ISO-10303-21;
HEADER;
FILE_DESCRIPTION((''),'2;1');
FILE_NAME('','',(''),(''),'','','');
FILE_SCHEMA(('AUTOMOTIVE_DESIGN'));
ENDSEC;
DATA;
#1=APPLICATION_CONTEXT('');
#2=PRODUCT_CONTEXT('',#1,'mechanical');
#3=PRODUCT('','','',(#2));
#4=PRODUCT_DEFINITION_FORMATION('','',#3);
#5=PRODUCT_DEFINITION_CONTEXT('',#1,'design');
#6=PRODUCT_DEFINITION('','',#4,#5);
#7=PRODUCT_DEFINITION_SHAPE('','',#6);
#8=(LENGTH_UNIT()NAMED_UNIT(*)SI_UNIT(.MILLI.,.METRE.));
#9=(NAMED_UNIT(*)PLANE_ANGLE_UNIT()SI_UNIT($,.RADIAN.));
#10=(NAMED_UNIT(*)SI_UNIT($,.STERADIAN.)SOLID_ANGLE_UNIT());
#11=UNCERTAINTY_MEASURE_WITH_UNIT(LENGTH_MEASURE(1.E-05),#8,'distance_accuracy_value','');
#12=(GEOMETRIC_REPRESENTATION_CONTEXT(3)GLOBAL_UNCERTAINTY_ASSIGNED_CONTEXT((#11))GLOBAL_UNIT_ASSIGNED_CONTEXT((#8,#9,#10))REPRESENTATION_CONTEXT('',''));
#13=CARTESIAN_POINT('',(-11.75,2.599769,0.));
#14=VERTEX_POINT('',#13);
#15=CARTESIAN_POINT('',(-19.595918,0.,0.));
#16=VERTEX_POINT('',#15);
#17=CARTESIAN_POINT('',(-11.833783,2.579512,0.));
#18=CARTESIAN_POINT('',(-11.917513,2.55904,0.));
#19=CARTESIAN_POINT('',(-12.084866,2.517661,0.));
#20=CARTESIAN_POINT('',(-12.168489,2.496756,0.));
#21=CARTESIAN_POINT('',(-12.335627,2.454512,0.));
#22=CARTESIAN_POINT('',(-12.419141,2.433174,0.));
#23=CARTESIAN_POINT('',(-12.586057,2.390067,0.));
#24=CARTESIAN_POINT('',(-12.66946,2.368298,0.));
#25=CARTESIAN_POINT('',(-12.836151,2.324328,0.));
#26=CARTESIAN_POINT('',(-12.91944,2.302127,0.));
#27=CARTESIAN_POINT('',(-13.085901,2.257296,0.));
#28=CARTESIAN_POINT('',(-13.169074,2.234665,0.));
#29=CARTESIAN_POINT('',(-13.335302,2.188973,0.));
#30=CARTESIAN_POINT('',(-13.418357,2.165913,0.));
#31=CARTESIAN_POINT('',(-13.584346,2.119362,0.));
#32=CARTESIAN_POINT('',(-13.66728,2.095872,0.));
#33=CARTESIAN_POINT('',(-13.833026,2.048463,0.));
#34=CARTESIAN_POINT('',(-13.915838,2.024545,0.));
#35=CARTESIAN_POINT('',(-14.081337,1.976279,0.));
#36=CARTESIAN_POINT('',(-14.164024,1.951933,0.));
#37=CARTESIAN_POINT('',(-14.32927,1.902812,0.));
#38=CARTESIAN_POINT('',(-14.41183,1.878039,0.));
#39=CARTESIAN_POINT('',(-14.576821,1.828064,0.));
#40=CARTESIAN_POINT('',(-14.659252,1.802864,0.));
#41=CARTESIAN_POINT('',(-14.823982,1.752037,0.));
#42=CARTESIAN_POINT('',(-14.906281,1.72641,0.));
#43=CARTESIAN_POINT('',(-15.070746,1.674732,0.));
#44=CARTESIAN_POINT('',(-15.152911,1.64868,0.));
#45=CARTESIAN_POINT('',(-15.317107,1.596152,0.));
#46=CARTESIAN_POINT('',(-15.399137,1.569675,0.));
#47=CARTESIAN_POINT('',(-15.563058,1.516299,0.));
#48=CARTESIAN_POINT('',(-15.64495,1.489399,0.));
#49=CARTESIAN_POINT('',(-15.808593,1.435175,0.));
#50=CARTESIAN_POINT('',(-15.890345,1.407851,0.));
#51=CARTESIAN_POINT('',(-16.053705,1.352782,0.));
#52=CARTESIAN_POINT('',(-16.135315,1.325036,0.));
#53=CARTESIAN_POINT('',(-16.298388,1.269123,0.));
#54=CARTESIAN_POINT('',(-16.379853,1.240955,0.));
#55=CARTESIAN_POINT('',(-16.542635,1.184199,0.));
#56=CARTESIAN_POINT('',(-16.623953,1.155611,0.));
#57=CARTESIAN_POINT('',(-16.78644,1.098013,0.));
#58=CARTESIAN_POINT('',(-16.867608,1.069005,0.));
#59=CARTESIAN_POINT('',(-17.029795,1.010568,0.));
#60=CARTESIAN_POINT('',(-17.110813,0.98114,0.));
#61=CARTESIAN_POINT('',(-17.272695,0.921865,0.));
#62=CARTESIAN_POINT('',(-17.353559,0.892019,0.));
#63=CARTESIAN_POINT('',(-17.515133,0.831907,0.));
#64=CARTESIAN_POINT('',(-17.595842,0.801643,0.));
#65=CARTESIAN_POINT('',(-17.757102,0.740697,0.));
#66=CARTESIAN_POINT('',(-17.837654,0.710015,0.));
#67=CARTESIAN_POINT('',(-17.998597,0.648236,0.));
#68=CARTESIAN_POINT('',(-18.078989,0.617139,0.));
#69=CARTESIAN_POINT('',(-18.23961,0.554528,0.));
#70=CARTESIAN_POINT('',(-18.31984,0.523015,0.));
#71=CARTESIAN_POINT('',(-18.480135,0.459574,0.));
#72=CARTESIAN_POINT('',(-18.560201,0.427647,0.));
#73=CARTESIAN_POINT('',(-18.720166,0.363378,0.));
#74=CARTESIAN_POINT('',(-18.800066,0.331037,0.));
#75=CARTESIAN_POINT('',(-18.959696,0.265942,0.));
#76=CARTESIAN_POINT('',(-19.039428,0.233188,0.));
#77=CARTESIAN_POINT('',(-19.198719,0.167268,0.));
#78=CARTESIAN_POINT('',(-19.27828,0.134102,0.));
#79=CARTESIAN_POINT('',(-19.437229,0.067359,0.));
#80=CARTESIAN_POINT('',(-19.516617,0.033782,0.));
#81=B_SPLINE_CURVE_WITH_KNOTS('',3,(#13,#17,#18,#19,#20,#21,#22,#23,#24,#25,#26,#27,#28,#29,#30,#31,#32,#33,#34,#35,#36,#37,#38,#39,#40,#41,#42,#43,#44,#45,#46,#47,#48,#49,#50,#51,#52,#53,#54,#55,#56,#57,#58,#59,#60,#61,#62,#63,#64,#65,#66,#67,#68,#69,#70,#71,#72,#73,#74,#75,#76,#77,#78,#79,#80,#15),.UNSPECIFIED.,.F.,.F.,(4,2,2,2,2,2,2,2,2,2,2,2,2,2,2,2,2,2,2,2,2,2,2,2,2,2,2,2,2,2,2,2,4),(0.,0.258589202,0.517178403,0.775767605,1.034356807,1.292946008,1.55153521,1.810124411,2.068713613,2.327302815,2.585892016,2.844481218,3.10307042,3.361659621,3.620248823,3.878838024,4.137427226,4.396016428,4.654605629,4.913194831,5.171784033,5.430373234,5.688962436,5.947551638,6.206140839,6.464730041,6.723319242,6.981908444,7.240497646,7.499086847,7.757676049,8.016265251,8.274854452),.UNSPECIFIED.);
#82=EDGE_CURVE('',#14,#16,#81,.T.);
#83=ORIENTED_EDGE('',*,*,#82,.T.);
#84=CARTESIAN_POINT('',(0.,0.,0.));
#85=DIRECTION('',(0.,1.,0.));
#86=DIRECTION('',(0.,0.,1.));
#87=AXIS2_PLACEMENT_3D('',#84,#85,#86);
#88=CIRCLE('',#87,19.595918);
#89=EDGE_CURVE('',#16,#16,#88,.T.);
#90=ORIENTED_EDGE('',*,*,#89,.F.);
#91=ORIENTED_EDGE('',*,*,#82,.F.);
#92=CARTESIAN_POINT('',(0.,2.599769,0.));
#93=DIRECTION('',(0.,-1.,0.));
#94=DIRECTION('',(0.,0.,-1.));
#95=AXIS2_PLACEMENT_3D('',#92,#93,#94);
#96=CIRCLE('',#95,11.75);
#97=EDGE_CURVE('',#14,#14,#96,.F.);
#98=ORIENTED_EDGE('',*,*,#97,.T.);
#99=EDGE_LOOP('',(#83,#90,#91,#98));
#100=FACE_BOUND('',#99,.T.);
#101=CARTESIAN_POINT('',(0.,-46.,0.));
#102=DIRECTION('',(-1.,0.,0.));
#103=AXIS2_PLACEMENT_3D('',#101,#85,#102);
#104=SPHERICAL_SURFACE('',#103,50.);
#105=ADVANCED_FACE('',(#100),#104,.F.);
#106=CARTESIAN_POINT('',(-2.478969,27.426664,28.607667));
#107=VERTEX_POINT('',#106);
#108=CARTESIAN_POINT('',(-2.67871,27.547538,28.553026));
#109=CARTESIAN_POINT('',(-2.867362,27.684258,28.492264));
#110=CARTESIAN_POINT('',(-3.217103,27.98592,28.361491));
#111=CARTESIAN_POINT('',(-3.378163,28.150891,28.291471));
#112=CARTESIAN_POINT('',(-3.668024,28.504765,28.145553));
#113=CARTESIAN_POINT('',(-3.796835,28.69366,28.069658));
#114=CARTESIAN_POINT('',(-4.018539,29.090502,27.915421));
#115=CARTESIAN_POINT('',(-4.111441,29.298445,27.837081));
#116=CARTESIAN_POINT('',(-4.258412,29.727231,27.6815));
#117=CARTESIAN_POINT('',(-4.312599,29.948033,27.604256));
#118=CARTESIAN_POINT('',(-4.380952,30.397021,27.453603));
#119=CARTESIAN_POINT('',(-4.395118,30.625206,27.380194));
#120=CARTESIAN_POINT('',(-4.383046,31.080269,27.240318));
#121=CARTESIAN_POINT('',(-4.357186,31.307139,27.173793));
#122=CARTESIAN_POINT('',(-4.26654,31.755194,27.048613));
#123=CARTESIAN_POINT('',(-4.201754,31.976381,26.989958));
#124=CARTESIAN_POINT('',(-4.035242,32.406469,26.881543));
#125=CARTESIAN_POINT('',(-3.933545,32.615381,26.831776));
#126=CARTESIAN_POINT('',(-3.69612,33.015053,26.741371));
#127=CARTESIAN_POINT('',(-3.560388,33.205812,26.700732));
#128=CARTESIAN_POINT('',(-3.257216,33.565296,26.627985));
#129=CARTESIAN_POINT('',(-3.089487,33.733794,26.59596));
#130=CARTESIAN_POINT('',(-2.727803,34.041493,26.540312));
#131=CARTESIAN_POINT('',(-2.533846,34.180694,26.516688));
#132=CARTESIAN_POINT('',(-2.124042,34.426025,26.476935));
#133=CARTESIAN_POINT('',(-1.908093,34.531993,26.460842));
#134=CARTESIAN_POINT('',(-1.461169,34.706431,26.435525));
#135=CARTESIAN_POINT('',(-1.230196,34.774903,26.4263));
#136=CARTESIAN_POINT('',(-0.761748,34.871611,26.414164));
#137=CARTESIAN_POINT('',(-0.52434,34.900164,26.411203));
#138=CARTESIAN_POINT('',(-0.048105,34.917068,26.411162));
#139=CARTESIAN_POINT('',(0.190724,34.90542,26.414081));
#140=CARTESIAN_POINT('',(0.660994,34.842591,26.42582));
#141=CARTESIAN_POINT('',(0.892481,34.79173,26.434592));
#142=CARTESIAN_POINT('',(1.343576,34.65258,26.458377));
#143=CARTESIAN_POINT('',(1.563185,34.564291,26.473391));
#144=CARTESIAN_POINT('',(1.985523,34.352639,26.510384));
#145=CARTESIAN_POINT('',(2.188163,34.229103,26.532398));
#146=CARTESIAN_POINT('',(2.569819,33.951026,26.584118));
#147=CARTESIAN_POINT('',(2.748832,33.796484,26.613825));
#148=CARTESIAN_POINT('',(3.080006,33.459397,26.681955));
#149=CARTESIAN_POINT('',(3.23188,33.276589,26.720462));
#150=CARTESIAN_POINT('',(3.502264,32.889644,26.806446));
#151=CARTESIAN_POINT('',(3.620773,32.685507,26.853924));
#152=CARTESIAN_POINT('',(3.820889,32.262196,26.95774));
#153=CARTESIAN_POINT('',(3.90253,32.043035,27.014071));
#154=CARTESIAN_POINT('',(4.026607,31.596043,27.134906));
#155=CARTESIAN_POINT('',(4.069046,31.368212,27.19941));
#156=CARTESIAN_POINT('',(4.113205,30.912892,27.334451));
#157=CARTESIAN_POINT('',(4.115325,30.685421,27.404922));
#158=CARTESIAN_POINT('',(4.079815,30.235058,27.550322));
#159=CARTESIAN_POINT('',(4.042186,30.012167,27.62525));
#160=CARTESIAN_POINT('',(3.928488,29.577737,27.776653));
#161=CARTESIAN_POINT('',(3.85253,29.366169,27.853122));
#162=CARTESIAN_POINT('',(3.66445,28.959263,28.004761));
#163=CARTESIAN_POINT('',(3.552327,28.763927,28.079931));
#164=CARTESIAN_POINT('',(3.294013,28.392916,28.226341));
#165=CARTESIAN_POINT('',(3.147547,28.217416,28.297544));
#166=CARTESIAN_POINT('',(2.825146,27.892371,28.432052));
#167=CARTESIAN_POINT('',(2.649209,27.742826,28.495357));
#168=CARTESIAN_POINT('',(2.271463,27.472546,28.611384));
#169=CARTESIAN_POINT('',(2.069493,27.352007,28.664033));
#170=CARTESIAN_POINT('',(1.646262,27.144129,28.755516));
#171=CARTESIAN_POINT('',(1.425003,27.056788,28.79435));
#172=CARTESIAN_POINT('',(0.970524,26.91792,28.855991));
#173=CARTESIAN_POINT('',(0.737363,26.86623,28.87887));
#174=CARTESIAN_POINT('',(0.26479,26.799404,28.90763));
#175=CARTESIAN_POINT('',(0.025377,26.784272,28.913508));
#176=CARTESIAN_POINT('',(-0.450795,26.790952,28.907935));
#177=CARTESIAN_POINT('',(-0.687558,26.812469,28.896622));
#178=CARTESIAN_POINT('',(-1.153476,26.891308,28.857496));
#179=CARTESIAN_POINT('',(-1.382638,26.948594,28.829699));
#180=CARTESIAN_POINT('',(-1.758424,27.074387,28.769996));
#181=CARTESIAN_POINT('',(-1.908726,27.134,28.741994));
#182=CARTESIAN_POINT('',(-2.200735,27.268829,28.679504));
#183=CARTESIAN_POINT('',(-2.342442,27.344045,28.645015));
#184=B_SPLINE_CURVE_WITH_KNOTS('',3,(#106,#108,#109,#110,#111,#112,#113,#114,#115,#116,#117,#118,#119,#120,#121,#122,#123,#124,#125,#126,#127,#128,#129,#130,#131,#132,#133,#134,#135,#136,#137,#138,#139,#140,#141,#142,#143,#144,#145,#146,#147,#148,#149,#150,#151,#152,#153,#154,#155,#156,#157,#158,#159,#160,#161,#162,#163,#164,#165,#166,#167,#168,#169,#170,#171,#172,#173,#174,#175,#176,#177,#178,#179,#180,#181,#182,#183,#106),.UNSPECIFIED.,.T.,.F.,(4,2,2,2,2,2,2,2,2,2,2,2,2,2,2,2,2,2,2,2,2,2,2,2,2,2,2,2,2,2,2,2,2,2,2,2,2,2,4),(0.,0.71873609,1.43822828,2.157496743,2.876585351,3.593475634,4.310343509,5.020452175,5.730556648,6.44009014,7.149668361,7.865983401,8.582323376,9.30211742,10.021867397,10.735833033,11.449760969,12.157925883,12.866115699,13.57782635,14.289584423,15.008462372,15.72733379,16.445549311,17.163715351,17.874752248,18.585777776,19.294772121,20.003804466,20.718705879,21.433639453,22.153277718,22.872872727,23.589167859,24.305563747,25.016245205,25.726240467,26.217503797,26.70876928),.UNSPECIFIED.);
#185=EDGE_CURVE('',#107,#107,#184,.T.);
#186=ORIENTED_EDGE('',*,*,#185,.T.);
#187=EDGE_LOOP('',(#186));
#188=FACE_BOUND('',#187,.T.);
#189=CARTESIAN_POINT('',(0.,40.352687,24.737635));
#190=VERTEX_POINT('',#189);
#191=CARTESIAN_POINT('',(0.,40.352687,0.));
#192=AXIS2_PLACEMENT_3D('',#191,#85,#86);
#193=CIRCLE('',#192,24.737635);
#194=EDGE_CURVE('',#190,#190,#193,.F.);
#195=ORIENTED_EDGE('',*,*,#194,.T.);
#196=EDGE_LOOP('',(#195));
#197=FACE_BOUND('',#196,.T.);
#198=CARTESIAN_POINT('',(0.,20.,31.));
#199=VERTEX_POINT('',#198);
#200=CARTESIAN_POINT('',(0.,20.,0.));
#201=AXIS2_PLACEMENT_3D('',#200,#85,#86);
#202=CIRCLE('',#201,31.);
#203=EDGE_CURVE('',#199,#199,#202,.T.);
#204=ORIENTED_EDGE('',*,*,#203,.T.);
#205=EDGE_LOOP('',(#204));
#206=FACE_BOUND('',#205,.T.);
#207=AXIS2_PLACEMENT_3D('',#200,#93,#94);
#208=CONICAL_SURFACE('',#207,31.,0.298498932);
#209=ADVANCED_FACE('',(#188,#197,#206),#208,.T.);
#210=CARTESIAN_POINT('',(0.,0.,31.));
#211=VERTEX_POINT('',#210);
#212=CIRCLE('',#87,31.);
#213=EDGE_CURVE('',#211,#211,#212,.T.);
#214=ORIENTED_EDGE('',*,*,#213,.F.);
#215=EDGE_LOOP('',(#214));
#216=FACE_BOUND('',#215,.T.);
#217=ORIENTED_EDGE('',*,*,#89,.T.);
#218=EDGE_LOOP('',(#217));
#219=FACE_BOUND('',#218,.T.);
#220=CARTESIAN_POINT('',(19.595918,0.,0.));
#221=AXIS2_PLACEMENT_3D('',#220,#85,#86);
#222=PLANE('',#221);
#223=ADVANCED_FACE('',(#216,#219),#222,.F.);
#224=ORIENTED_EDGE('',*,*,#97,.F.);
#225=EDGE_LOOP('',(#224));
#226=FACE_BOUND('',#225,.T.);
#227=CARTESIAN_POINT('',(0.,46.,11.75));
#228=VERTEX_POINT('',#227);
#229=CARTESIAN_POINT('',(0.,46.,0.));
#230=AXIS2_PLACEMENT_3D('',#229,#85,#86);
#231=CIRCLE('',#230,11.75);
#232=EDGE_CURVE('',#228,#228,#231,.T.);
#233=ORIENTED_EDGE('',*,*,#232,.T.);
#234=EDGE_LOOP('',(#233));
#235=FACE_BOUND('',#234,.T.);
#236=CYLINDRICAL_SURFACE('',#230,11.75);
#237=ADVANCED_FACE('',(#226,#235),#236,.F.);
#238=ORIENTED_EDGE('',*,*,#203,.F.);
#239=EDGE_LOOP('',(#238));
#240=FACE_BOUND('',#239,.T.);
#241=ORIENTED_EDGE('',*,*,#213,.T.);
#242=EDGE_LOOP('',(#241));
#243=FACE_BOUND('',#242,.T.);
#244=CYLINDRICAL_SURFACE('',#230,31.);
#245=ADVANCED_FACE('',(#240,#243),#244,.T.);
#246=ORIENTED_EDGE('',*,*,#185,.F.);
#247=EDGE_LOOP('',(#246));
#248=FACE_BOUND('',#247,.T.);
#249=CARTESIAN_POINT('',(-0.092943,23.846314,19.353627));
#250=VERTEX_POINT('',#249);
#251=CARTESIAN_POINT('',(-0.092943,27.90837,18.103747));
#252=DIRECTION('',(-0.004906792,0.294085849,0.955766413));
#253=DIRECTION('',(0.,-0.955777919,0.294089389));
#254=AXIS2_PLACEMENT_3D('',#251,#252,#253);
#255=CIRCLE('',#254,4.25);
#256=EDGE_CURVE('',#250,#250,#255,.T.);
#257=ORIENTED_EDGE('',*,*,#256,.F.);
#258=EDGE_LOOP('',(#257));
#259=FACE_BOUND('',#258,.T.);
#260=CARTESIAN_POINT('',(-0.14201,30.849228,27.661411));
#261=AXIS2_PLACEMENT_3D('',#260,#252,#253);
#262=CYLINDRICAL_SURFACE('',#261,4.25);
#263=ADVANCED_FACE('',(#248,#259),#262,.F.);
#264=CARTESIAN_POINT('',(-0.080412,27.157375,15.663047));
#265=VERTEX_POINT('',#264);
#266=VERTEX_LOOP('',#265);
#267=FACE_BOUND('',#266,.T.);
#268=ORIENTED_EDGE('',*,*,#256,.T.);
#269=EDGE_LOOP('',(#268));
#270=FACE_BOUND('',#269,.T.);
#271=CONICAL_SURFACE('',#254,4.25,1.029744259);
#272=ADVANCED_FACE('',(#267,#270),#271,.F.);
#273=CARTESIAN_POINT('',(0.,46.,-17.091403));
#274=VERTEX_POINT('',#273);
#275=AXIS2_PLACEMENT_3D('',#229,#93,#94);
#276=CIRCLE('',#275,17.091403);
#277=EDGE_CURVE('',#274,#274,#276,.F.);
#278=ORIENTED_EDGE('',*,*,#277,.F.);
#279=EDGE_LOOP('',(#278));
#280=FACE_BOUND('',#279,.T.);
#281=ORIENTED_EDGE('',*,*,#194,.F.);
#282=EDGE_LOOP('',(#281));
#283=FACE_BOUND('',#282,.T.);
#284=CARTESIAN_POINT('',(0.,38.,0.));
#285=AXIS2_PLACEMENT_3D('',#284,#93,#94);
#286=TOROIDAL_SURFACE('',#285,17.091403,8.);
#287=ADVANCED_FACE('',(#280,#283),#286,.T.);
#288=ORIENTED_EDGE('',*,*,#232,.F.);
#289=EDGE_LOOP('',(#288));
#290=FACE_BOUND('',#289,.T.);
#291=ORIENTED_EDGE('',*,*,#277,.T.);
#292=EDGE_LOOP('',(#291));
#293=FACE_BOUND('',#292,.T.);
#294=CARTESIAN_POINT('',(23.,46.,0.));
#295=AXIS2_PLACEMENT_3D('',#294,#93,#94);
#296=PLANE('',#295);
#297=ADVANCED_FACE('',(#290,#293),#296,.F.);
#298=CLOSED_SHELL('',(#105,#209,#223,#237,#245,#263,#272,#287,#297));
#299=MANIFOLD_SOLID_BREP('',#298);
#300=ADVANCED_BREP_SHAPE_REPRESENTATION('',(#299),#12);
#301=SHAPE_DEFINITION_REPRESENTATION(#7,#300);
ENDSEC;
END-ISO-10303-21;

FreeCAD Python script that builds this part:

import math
import FreeCAD as App
import Part
import Sketcher

V = App.Vector


def edges_at(feature, points):
    """Names of the edges that pass closest to the given points."""
    edges = feature.Shape.Edges
    near = lambda p: min(range(len(edges)), key=lambda i: edges[i].distToShape(Part.Vertex(*p))[0])
    return sorted({f"Edge{near(p) + 1}" for p in points})

doc = App.newDocument("Part")
body = doc.addObject("PartDesign::Body", "Body")

sketch1 = body.newObject("Sketcher::SketchObject", "Sketch")
sketch1.AttachmentSupport = (doc.getObject("XY_Plane"), [""])
sketch1.MapMode = "FlatFace"
sketch1.addGeometry([
    Part.LineSegment(V(19.595918, 0, 0), V(31, 0, 0)),
    Part.LineSegment(V(31, 0, 0), V(31, 20, 0)),
    Part.LineSegment(V(31, 20, 0), V(23, 46, 0)),
    Part.LineSegment(V(23, 46, 0), V(0, 46, 0)),
    Part.LineSegment(V(0, 46, 0), V(0, 4, 0)),
    Part.ArcOfCircle(Part.Circle(V(0, -46, 0), V(0, 0, 1), 50), math.radians(66.926082), math.radians(90)),
], False)
sketch1.addConstraint([
    Sketcher.Constraint("Coincident", 0, 2, 1, 1),
    Sketcher.Constraint("Coincident", 1, 2, 2, 1),
    Sketcher.Constraint("Coincident", 2, 2, 3, 1),
    Sketcher.Constraint("Coincident", 3, 2, 4, 1),
    Sketcher.Constraint("Coincident", 4, 2, 5, 2),
    Sketcher.Constraint("Coincident", 5, 1, 0, 1),
    Sketcher.Constraint("Horizontal", 0),
    Sketcher.Constraint("Vertical", 1),
    Sketcher.Constraint("Horizontal", 3),
    Sketcher.Constraint("Vertical", 4),
    Sketcher.Constraint("PointOnObject", 5, 3, -2),
    Sketcher.Constraint("PointOnObject", 0, 2, -1),
    Sketcher.Constraint("PointOnObject", 3, 2, -2),
    Sketcher.Constraint("Radius", 5, 50.0),
    Sketcher.Constraint("DistanceX", 3, 2, 3, 1, 23.0),
    Sketcher.Constraint("DistanceY", 1, 1, 1, 2, 20.0),
    Sketcher.Constraint("DistanceY", 4, 2, 4, 1, 42.0),
    Sketcher.Constraint("DistanceY", 5, 3, -1, 1, 46.0),
    Sketcher.Constraint("DistanceX", -1, 1, 0, 2, 31.0),
])
revolution = body.newObject("PartDesign::Revolution", "Revolution")
revolution.Profile = sketch1
revolution.ReferenceAxis = (sketch1, ["V_Axis"])
revolution.Angle = 360
doc.recompute()

fillet = body.newObject("PartDesign::Fillet", "Fillet")
fillet.Base = (revolution, edges_at(revolution, [(0, 46, -23)]))
fillet.Radius = 8

sketch2 = body.newObject("Sketcher::SketchObject", "Sketch001")
sketch2.Placement = App.Placement(V(-0.174244, 10.443243, 33.940093), App.Rotation(V(0, 0.955777919, -0.294089389), V(-0.999987961, -0.001443035, -0.004689803), V(-0.004906792, 0.294085849, 0.955766413), "ZXY"))
sketch2.addGeometry(Part.Circle(V(21.350084, -0.032234, 0), V(0, 0, 1), 4.25), False)
sketch2.addConstraint([
    Sketcher.Constraint("Diameter", 0, 8.5),
    Sketcher.Constraint("DistanceX", -1, 1, 0, 3, 21.350084),
    Sketcher.Constraint("DistanceY", 0, 3, -1, 1, 0.032234),
])
doc.recompute()
hole = body.newObject("PartDesign::Hole", "Hole")
hole.Profile = sketch2
hole.ThreadType = "None"
hole.Diameter = 8.5
hole.DepthType = "Dimension"
hole.Depth = 10
hole.DrillPoint = "Angled"
hole.DrillPointAngle = 118

sketch3 = body.newObject("Sketcher::SketchObject", "Sketch002")
sketch3.AttachmentSupport = (doc.getObject("XZ_Plane"), [""])
sketch3.MapMode = "FlatFace"
sketch3.AttachmentOffset = App.Placement(V(0, 0, -46), App.Rotation())
sketch3.addGeometry(Part.Circle(V(0, 0, 0), V(0, 0, 1), 11.75), False)
sketch3.addConstraint([
    Sketcher.Constraint("Coincident", 0, 3, -1, 1),
    Sketcher.Constraint("Diameter", 0, 23.5),
])
doc.recompute()
hole2 = body.newObject("PartDesign::Hole", "Hole001")
hole2.Profile = sketch3
hole2.ThreadType = "None"
hole2.Diameter = 23.5
hole2.DepthType = "ThroughAll"
hole2.Reversed = True

doc.recompute()
